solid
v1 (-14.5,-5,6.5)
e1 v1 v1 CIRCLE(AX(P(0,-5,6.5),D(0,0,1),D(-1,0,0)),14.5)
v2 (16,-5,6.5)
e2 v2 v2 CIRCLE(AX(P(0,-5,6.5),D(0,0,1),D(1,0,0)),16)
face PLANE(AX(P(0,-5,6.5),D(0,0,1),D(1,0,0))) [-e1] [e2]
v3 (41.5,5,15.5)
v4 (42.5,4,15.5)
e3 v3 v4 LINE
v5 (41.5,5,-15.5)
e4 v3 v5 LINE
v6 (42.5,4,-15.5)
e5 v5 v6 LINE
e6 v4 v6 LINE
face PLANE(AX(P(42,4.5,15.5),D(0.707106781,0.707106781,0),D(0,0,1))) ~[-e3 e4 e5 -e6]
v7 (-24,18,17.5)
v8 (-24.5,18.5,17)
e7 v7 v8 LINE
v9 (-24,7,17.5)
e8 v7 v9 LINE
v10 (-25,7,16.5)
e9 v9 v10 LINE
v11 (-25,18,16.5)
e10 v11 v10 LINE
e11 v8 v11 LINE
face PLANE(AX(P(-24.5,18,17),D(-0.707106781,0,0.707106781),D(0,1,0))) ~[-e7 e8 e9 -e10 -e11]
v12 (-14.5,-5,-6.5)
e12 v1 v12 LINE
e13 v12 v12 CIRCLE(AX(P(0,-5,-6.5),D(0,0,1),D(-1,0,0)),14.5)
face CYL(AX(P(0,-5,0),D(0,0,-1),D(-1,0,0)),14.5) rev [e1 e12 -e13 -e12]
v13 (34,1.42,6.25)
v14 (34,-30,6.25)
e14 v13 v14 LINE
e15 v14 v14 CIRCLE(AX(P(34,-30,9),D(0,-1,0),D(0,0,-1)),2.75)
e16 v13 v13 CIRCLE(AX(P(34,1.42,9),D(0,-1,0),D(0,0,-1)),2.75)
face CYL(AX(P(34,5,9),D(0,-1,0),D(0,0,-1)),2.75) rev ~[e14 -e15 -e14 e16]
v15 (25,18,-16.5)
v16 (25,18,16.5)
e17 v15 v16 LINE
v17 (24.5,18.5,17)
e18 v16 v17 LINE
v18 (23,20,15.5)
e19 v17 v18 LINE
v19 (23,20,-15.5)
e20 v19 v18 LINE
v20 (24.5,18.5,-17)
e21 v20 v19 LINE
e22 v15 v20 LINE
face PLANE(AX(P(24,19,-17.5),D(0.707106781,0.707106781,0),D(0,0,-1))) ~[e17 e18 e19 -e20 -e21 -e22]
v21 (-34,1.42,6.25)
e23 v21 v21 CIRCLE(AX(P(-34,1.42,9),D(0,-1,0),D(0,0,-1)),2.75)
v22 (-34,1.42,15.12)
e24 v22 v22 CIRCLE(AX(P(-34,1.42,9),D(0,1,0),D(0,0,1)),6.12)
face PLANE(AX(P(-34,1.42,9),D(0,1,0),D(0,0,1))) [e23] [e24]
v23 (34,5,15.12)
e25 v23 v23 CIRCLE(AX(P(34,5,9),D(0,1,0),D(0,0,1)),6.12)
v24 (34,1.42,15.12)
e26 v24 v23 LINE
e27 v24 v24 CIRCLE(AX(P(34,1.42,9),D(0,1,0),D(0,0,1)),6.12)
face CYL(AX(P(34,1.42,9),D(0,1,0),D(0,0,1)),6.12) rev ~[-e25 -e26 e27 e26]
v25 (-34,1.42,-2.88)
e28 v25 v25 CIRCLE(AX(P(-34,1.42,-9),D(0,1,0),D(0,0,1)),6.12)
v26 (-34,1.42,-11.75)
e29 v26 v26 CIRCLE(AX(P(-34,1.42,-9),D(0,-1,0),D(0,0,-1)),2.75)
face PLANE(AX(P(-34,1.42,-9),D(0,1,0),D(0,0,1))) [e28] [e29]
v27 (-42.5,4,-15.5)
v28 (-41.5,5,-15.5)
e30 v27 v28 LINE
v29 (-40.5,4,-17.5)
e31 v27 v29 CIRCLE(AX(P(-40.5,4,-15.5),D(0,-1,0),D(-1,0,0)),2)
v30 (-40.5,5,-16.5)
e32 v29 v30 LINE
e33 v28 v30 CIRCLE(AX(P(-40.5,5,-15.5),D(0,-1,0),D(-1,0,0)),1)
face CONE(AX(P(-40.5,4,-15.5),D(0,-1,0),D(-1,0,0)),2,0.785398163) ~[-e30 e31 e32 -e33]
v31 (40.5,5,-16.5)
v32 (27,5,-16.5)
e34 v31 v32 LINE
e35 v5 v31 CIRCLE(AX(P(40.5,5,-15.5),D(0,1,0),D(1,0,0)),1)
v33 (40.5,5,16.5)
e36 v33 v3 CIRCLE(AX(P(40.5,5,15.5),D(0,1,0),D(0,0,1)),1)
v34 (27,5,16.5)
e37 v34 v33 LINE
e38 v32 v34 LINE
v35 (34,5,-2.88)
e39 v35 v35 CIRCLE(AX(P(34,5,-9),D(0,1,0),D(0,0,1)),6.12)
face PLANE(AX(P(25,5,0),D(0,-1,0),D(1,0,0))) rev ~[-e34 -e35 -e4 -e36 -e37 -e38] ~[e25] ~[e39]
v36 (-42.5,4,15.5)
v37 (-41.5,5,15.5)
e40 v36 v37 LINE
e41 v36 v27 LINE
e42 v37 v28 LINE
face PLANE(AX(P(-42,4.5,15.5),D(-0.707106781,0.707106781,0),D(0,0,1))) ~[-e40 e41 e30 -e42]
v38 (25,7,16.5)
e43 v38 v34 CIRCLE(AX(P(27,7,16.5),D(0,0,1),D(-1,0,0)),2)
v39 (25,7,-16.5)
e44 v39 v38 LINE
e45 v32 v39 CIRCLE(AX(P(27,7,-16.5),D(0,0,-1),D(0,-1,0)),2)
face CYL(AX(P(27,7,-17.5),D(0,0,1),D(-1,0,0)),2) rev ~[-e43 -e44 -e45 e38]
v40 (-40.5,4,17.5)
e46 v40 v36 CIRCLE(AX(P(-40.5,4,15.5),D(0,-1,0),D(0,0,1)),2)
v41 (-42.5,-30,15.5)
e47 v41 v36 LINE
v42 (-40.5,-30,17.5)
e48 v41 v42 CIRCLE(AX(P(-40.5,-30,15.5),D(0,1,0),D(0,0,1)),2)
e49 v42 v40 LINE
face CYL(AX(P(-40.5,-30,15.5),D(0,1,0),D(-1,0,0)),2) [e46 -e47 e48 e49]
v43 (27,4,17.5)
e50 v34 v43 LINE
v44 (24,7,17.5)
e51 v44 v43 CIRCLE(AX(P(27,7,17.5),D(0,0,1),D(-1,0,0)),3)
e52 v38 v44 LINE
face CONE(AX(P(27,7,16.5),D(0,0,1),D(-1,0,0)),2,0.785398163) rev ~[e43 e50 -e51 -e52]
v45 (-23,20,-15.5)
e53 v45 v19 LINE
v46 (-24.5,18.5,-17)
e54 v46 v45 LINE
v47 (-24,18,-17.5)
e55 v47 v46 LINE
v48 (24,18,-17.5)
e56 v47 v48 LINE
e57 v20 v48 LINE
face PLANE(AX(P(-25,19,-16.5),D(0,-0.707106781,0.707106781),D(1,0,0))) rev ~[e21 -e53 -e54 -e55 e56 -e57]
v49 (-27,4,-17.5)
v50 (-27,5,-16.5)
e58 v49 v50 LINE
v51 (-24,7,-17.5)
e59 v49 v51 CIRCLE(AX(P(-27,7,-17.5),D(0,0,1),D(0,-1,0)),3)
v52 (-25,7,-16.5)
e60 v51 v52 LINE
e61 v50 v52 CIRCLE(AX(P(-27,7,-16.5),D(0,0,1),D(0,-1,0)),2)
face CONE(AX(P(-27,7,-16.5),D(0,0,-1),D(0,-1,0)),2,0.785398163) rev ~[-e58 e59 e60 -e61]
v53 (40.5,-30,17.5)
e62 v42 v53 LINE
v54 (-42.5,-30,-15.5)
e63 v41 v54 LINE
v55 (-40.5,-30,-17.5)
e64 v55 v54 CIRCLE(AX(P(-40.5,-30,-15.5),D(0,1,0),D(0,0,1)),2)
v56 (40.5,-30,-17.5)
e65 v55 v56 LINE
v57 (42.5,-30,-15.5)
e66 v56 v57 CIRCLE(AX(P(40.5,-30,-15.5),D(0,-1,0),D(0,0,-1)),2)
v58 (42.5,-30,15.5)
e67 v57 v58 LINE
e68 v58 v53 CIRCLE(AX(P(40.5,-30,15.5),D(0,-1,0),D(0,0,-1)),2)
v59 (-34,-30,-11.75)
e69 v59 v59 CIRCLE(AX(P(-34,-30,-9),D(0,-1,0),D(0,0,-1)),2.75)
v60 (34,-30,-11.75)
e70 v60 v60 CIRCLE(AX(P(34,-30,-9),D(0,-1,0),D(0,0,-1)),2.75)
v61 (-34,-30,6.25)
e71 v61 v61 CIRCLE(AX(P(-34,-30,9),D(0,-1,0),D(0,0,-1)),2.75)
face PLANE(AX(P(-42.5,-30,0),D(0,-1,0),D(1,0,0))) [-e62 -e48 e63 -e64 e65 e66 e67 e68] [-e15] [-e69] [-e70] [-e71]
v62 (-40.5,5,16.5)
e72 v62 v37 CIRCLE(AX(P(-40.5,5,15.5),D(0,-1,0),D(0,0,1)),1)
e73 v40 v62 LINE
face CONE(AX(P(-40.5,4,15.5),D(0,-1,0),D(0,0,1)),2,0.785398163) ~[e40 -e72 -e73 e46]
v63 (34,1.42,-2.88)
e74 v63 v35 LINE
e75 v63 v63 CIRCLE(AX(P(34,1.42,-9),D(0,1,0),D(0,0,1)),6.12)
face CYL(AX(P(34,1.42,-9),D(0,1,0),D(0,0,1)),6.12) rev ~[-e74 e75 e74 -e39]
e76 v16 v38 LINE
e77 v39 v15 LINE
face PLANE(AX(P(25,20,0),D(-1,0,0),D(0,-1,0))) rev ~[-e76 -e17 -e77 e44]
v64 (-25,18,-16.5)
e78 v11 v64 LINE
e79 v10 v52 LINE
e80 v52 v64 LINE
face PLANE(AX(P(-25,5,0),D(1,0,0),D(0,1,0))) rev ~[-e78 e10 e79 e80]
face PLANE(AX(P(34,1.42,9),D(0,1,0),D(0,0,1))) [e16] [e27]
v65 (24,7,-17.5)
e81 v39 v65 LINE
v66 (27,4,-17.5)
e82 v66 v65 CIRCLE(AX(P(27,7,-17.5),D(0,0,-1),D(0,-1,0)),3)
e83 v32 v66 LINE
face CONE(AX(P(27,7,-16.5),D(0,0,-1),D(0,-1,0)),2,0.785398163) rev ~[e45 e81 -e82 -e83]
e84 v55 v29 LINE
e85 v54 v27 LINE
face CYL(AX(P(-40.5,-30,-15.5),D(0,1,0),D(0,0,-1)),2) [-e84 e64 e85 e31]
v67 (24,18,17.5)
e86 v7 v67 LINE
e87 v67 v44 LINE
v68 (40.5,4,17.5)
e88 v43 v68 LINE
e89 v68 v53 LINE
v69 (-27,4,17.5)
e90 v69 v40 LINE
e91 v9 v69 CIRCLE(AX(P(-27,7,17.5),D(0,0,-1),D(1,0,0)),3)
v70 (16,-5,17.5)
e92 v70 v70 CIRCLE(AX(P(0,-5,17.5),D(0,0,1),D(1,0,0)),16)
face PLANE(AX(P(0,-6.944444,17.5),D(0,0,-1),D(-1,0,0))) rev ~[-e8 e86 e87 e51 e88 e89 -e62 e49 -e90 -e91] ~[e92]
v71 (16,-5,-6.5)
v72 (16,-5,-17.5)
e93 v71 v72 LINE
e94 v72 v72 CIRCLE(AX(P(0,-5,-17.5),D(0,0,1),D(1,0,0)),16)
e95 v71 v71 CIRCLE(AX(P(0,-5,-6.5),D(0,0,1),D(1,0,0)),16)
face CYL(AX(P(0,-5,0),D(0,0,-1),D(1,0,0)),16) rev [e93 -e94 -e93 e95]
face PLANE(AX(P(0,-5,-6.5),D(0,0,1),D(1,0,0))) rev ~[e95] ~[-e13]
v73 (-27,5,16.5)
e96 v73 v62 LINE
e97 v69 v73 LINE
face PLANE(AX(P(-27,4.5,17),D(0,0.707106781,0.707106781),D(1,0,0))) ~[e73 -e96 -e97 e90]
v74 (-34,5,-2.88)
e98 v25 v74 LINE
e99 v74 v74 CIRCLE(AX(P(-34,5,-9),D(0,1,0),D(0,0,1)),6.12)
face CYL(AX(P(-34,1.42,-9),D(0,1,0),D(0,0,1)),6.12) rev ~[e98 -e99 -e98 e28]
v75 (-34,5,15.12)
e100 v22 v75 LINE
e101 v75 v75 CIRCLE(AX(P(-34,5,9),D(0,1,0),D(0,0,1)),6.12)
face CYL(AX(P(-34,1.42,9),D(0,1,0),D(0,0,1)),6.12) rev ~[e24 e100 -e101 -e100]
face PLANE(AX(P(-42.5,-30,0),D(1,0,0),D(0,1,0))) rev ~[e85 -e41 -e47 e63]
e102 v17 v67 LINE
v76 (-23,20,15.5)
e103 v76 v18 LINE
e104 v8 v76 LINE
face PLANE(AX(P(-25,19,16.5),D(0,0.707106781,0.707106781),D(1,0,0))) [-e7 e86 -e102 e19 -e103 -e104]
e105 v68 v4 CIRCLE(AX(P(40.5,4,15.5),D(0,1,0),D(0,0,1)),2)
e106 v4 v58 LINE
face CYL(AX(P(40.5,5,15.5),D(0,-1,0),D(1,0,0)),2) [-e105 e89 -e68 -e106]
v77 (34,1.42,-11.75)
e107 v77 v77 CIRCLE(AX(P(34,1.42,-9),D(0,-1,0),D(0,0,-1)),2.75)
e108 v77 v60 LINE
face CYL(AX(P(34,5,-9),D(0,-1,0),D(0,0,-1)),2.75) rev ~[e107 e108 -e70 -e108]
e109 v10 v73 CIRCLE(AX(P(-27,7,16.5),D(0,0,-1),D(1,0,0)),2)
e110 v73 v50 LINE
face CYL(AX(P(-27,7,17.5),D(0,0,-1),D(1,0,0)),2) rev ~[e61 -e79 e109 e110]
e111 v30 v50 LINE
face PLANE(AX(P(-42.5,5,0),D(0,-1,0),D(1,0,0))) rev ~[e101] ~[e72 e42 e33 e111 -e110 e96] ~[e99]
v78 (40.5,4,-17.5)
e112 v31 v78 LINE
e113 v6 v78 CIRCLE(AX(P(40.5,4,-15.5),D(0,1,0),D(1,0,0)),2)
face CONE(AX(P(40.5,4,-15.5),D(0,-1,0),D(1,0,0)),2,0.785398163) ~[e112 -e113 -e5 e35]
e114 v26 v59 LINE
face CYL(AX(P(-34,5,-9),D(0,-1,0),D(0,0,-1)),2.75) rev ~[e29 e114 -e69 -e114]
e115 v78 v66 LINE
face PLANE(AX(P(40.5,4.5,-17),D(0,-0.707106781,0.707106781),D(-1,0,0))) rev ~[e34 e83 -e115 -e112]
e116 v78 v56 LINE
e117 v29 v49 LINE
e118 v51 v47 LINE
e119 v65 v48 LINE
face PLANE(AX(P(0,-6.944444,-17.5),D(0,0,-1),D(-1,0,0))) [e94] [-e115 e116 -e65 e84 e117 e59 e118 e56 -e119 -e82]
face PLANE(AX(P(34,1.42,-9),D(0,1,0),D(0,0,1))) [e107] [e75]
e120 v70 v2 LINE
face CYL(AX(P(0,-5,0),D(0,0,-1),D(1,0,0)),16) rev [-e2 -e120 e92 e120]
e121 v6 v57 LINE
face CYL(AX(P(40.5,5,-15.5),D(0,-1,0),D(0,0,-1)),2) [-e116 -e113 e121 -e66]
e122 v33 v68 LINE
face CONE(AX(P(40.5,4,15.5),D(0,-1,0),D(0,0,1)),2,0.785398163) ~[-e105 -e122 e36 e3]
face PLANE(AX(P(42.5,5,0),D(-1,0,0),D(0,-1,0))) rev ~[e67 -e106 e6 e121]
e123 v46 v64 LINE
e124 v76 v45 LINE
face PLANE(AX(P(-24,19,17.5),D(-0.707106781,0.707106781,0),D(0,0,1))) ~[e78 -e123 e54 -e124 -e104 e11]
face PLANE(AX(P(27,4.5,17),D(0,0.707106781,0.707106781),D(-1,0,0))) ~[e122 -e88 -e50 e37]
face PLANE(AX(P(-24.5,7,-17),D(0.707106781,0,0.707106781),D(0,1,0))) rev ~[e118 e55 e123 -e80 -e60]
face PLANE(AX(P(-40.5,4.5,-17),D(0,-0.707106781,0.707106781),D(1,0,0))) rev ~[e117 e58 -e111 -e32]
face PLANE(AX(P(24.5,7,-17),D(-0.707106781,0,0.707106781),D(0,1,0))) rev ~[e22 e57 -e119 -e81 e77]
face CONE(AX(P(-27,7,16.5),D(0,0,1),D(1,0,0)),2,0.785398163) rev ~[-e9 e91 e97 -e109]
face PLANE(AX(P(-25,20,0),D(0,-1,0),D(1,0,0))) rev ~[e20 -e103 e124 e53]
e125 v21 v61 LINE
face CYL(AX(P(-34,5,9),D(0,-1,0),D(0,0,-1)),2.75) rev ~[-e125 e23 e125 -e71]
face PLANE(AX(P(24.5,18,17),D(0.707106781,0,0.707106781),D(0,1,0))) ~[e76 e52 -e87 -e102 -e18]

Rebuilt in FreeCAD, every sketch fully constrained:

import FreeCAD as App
import Part
import Sketcher
Q = App.Units.Quantity


def edges_at(feature, points):
    """Names of the edges that pass closest to the given points."""
    edges = feature.Shape.Edges
    near = lambda p: min(range(len(edges)), key=lambda i: edges[i].distToShape(Part.Vertex(*p))[0])
    return sorted({f"Edge{near(p) + 1}" for p in points})

doc = App.newDocument("Part")
body = doc.addObject("PartDesign::Body", "Body")

sketch1 = doc.addObject("Sketcher::SketchObject", "Sketch")
body.addObject(sketch1)
sketch1.AttachmentSupport = (doc.XY_Plane, [""])
sketch1.MapMode = "FlatFace"
sketch1.addGeometry(Part.LineSegment(App.Vector(-42, -30, 0), App.Vector(42, -30, 0)), False)
sketch1.addGeometry(Part.LineSegment(App.Vector(42, -30, 0), App.Vector(42, 5, 0)), False)
sketch1.addGeometry(Part.LineSegment(App.Vector(42, 5, 0), App.Vector(25, 5, 0)), False)
sketch1.addGeometry(Part.LineSegment(App.Vector(25, 5, 0), App.Vector(25, 20, 0)), False)
sketch1.addGeometry(Part.LineSegment(App.Vector(25, 20, 0), App.Vector(-25, 20, 0)), False)
sketch1.addGeometry(Part.LineSegment(App.Vector(-25, 20, 0), App.Vector(-25, 5, 0)), False)
sketch1.addGeometry(Part.LineSegment(App.Vector(-25, 5, 0), App.Vector(-42, 5, 0)), False)
sketch1.addGeometry(Part.LineSegment(App.Vector(-42, 5, 0), App.Vector(-42, -30, 0)), False)
sketch1.addGeometry(Part.Circle(App.Vector(0, -5, 0), App.Vector(0, 0, 1), 16), False)
sketch1.addConstraint(Sketcher.Constraint("Coincident", 0, 2, 1, 1))
sketch1.addConstraint(Sketcher.Constraint("Coincident", 1, 2, 2, 1))
sketch1.addConstraint(Sketcher.Constraint("Coincident", 2, 2, 3, 1))
sketch1.addConstraint(Sketcher.Constraint("Coincident", 3, 2, 4, 1))
sketch1.addConstraint(Sketcher.Constraint("Coincident", 4, 2, 5, 1))
sketch1.addConstraint(Sketcher.Constraint("Coincident", 5, 2, 6, 1))
sketch1.addConstraint(Sketcher.Constraint("Coincident", 6, 2, 7, 1))
sketch1.addConstraint(Sketcher.Constraint("Coincident", 7, 2, 0, 1))
sketch1.addConstraint(Sketcher.Constraint("Horizontal", 0))
sketch1.addConstraint(Sketcher.Constraint("Vertical", 1))
sketch1.addConstraint(Sketcher.Constraint("Horizontal", 2))
sketch1.addConstraint(Sketcher.Constraint("Vertical", 3))
sketch1.addConstraint(Sketcher.Constraint("Horizontal", 4))
sketch1.addConstraint(Sketcher.Constraint("Vertical", 5))
sketch1.addConstraint(Sketcher.Constraint("Horizontal", 6))
sketch1.addConstraint(Sketcher.Constraint("Vertical", 7))
sketch1.addConstraint(Sketcher.Constraint("Symmetric", 2, 2, 5, 2, -2))
sketch1.addConstraint(Sketcher.Constraint("PointOnObject", 8, 3, -2))
sketch1.addConstraint(Sketcher.Constraint("Equal", 2, 6))
sketch1.addConstraint(Sketcher.Constraint("Diameter", 8, Q("32 mm")))
sketch1.addConstraint(Sketcher.Constraint("DistanceX", 0, 1, 0, 2, Q("85 mm")))
sketch1.addConstraint(Sketcher.Constraint("DistanceX", 4, 2, 4, 1, Q("50 mm")))
sketch1.addConstraint(Sketcher.Constraint("DistanceY", 1, 1, 1, 2, Q("35 mm")))
sketch1.addConstraint(Sketcher.Constraint("DistanceY", 3, 1, 3, 2, Q("15 mm")))
sketch1.addConstraint(Sketcher.Constraint("DistanceY", 8, 3, -1, 1, Q("5 mm")))
sketch1.addConstraint(Sketcher.Constraint("DistanceY", 0, 2, -1, 1, Q("30 mm")))
pad1 = doc.addObject("PartDesign::Pad", "Pad")
body.addObject(pad1)
pad1.Profile = sketch1
pad1.Length = 35
pad1.Midplane = True

sketch2 = doc.addObject("Sketcher::SketchObject", "Sketch001")
body.addObject(sketch2)
sketch2.AttachmentSupport = (doc.XY_Plane, [""])
sketch2.MapMode = "FlatFace"
sketch2.addGeometry(Part.Circle(App.Vector(0, -5, 0), App.Vector(0, 0, 1), 16), False)
sketch2.addGeometry(Part.Circle(App.Vector(0, -5, 0), App.Vector(0, 0, 1), 14), False)
sketch2.addConstraint(Sketcher.Constraint("Coincident", 1, 3, 0, 3))
sketch2.addConstraint(Sketcher.Constraint("PointOnObject", 0, 3, -2))
sketch2.addConstraint(Sketcher.Constraint("Diameter", 0, Q("32 mm")))
sketch2.addConstraint(Sketcher.Constraint("Diameter", 1, Q("29 mm")))
sketch2.addConstraint(Sketcher.Constraint("DistanceY", 0, 3, -1, 1, Q("5 mm")))
pad2 = doc.addObject("PartDesign::Pad", "Pad001")
body.addObject(pad2)
pad2.Profile = sketch2
pad2.Length = 13
pad2.Midplane = True

sketch3 = doc.addObject("Sketcher::SketchObject", "Sketch002")
body.addObject(sketch3)
sketch3.AttachmentSupport = (doc.XZ_Plane, [""])
sketch3.MapMode = "FlatFace"
sketch3.AttachmentOffset = App.Placement(App.Vector(0, 0, -5), App.Rotation())
sketch3.addGeometry(Part.Circle(App.Vector(-34, -9, 0), App.Vector(0, 0, 1), 2.6), False)
sketch3.addGeometry(Part.Circle(App.Vector(-34, 9, 0), App.Vector(0, 0, 1), 2.6), False)
sketch3.addGeometry(Part.Circle(App.Vector(34, -9, 0), App.Vector(0, 0, 1), 2.6), False)
sketch3.addGeometry(Part.Circle(App.Vector(34, 9, 0), App.Vector(0, 0, 1), 2.6), False)
sketch3.addConstraint(Sketcher.Constraint("Equal", 0, 1))
sketch3.addConstraint(Sketcher.Constraint("Equal", 1, 2))
sketch3.addConstraint(Sketcher.Constraint("Equal", 2, 3))
sketch3.addConstraint(Sketcher.Constraint("Symmetric", 1, 3, 2, 3, -1, 1))
sketch3.addConstraint(Sketcher.Constraint("Symmetric", 0, 3, 3, 3, -1, 1))
sketch3.addConstraint(Sketcher.Constraint("Symmetric", 0, 3, 2, 3, -2))
sketch3.addConstraint(Sketcher.Constraint("Diameter", 0, Q("5.2 mm")))
sketch3.addConstraint(Sketcher.Constraint("DistanceX", 0, 3, -1, 1, Q("34 mm")))
sketch3.addConstraint(Sketcher.Constraint("DistanceY", 0, 3, -1, 1, Q("9 mm")))
pocket1 = doc.addObject("PartDesign::Pocket", "Pocket")
body.addObject(pocket1)
pocket1.Profile = sketch3
pocket1.Type = "ThroughAll"
pocket1.Reversed = True

sketch4 = doc.addObject("Sketcher::SketchObject", "Sketch003")
body.addObject(sketch4)
sketch4.AttachmentSupport = (doc.XZ_Plane, [""])
sketch4.MapMode = "FlatFace"
sketch4.AttachmentOffset = App.Placement(App.Vector(0, 0, -5), App.Rotation())
sketch4.addGeometry(Part.Circle(App.Vector(-34, -9, 0), App.Vector(0, 0, 1), 2.8), False)
sketch4.addGeometry(Part.Circle(App.Vector(-34, 9, 0), App.Vector(0, 0, 1), 2.8), False)
sketch4.addGeometry(Part.Circle(App.Vector(34, 9, 0), App.Vector(0, 0, 1), 2.8), False)
sketch4.addGeometry(Part.Circle(App.Vector(34, -9, 0), App.Vector(0, 0, 1), 2.8), False)
sketch4.addConstraint(Sketcher.Constraint("Equal", 0, 1))
sketch4.addConstraint(Sketcher.Constraint("Equal", 1, 2))
sketch4.addConstraint(Sketcher.Constraint("Equal", 2, 3))
sketch4.addConstraint(Sketcher.Constraint("Symmetric", 0, 3, 2, 3, -1, 1))
sketch4.addConstraint(Sketcher.Constraint("Symmetric", 1, 3, 3, 3, -1, 1))
sketch4.addConstraint(Sketcher.Constraint("Symmetric", 1, 3, 2, 3, -2))
sketch4.addConstraint(Sketcher.Constraint("Diameter", 0, Q("5.5 mm")))
sketch4.addConstraint(Sketcher.Constraint("DistanceX", 0, 3, -1, 1, Q("34 mm")))
sketch4.addConstraint(Sketcher.Constraint("DistanceY", 0, 3, -1, 1, Q("9 mm")))
doc.recompute()
hole = doc.addObject("PartDesign::Hole", "Hole")
body.addObject(hole)
hole.Profile = sketch4
hole.ThreadType = "None"
hole.Diameter = 5.5
hole.DepthType = "ThroughAll"
hole.HoleCutType = "Counterbore"
hole.HoleCutDiameter = 12.24
hole.HoleCutDepth = 3.58
hole.Reversed = True
doc.recompute()

chamfer = doc.addObject("PartDesign::Chamfer", "Chamfer")
body.addObject(chamfer)
chamfer.Base = (hole, edges_at(hole, [
    (0, 20, -17.5),
    (-25, 20, 0),
    (25, 20, 0),
    (0, 20, 17.5),
]))
chamfer.Size = 2
doc.recompute()

fillet = doc.addObject("PartDesign::Fillet", "Fillet")
body.addObject(fillet)
fillet.Base = (chamfer, edges_at(chamfer, [
    (42.5, -12.5, -17.5),
    (-42.5, -12.5, 17.5),
    (-42.5, -12.5, -17.5),
    (25, 5, 0),
    (-25, 5, 0),
    (42.5, -12.5, 17.5),
]))
fillet.Radius = 2
doc.recompute()

chamfer2 = doc.addObject("PartDesign::Chamfer", "Chamfer001")
body.addObject(chamfer2)
chamfer2.Base = (fillet, edges_at(fillet, [
    (-33.75, 5, -17.5),
    (-42.5, 5, 0),
    (-33.75, 5, 17.5),
    (-41.914, 5, -16.914),
    (-41.914, 5, 16.914),
    (25, 12.5, 17.5),
    (33.75, 5, 17.5),
    (25, 12.5, -17.5),
    (33.75, 5, -17.5),
    (42.5, 5, 0),
    (41.914, 5, -16.914),
    (41.914, 5, 16.914),
    (-25.586, 5.586, -17.5),
    (-25.586, 5.586, 17.5),
    (25.586, 5.586, -17.5),
    (25.586, 5.586, 17.5),
    (-25, 12.5, 17.5),
    (-25, 12.5, -17.5),
]))
chamfer2.Size = 1

doc.recompute()
